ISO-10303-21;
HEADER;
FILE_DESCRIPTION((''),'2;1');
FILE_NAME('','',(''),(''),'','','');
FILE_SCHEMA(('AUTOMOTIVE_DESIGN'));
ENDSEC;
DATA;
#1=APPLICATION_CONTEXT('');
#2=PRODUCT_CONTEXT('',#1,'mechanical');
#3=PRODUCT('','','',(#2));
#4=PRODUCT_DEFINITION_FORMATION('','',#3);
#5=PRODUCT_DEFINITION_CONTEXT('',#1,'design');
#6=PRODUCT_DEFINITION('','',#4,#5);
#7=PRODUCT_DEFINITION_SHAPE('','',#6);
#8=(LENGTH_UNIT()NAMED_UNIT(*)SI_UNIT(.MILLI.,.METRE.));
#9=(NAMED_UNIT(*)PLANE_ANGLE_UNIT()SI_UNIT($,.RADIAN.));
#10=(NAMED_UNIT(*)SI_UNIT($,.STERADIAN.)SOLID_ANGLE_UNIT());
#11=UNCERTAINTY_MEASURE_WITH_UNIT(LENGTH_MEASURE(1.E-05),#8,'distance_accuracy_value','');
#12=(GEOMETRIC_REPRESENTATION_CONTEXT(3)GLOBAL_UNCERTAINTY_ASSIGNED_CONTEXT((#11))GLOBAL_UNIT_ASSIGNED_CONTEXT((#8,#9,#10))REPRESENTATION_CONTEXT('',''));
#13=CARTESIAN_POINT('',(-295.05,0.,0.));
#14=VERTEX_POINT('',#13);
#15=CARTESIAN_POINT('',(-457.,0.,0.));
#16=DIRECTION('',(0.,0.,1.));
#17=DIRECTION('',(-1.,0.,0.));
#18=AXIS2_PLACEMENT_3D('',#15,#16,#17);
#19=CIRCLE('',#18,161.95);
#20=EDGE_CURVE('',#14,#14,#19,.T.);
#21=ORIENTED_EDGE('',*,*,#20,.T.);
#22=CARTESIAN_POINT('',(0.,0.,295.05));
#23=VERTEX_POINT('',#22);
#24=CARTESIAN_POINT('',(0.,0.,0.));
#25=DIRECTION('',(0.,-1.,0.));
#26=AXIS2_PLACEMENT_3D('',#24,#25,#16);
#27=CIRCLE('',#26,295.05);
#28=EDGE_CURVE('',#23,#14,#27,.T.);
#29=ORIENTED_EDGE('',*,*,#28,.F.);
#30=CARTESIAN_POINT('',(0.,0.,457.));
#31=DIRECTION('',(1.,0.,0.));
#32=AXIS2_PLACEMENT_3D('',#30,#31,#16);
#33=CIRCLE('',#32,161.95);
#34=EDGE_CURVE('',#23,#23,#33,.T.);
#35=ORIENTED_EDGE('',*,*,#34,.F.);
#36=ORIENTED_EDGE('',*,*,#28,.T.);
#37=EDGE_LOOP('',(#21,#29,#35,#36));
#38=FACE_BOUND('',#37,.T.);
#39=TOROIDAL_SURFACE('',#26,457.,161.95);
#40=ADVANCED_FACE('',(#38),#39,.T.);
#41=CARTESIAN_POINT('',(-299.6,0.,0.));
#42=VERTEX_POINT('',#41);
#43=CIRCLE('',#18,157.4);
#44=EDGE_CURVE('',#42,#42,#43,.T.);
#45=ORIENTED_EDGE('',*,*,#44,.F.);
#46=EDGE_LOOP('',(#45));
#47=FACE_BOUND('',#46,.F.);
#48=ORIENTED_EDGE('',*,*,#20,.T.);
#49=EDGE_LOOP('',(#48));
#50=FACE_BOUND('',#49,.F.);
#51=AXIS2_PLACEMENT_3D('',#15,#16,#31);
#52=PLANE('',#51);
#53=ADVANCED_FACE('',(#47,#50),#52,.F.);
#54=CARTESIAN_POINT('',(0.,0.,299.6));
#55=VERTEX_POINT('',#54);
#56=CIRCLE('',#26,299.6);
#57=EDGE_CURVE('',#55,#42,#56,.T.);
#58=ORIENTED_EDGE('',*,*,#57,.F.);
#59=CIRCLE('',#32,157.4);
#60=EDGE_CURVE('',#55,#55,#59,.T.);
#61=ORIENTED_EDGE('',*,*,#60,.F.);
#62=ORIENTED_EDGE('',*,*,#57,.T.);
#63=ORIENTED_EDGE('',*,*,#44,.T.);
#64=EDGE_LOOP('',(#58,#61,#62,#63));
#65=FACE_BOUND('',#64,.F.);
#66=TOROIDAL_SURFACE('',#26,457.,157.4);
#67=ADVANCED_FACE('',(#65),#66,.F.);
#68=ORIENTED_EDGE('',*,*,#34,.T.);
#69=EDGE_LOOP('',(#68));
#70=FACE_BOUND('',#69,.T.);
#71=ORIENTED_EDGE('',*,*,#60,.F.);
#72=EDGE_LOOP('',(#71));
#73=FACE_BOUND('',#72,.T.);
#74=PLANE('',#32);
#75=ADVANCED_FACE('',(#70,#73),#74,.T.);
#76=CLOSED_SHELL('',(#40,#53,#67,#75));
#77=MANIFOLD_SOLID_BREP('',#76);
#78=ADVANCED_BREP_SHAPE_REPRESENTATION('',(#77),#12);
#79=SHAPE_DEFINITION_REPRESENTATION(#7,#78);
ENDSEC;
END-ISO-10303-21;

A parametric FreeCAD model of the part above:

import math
import FreeCAD as App
import Part
import Sketcher

doc = App.newDocument("Part")
params = doc.addObject("Spreadsheet::Sheet", "Params")
for row, (alias, value) in enumerate([
    ("sketch1_diameter", "323.9 mm"),
    ("sketch1_diameter2", "314.8 mm"),
    ("sketch2_radius", "457 mm"),
], start=1):
    params.set(f"A{row}", alias)
    params.set(f"B{row}", "=" + value)
    params.setAlias(f"B{row}", alias)

body = doc.addObject("PartDesign::Body", "Body")

# Sketch on XY plane
sketch1 = body.newObject("Sketcher::SketchObject", "Sketch")
sketch1.AttachmentSupport = (doc.getObject("XY_Plane"), [""])
sketch1.MapMode = "FlatFace"
sketch1.addGeometry([
    Part.Circle(App.Vector(-457, 0, 0), App.Vector(0, 0, 1), 162),
    Part.Circle(App.Vector(-457, 0, 0), App.Vector(0, 0, 1), 157),
], False)
sketch1.addConstraint([
    Sketcher.Constraint("Coincident", 1, 3, 0, 3),
    Sketcher.Constraint("PointOnObject", 0, 3, -1),
    Sketcher.Constraint("Diameter", 0, 323.9),
    Sketcher.Constraint("Diameter", 1, 314.8),
    Sketcher.Constraint("DistanceX", 0, 3, -1, 1, 457.0),
])
sketch1.setExpression("Constraints[2]", "Params.sketch1_diameter")
sketch1.setExpression("Constraints[3]", "Params.sketch1_diameter2")

# Sketch on XZ plane
sketch2 = body.newObject("Sketcher::SketchObject", "Sketch001")
sketch2.AttachmentSupport = (doc.getObject("XZ_Plane"), [""])
sketch2.MapMode = "FlatFace"
sketch2.addGeometry(Part.ArcOfCircle(Part.Circle(App.Vector(0, 0, 0), App.Vector(0, 0, 1), 457), math.radians(90), math.radians(180)), False)
sketch2.addConstraint([
    Sketcher.Constraint("Coincident", 0, 3, -1, 1),
    Sketcher.Constraint("PointOnObject", 0, 1, -2),
    Sketcher.Constraint("PointOnObject", 0, 2, -1),
    Sketcher.Constraint("Radius", 0, 457.0),
])
sketch2.setExpression("Constraints[3]", "Params.sketch2_radius")
doc.recompute()

additivepipe = body.newObject("PartDesign::AdditivePipe", "AdditivePipe")
additivepipe.Profile = sketch1
additivepipe.Spine = (sketch2, ["Edge1"])

doc.recompute()
